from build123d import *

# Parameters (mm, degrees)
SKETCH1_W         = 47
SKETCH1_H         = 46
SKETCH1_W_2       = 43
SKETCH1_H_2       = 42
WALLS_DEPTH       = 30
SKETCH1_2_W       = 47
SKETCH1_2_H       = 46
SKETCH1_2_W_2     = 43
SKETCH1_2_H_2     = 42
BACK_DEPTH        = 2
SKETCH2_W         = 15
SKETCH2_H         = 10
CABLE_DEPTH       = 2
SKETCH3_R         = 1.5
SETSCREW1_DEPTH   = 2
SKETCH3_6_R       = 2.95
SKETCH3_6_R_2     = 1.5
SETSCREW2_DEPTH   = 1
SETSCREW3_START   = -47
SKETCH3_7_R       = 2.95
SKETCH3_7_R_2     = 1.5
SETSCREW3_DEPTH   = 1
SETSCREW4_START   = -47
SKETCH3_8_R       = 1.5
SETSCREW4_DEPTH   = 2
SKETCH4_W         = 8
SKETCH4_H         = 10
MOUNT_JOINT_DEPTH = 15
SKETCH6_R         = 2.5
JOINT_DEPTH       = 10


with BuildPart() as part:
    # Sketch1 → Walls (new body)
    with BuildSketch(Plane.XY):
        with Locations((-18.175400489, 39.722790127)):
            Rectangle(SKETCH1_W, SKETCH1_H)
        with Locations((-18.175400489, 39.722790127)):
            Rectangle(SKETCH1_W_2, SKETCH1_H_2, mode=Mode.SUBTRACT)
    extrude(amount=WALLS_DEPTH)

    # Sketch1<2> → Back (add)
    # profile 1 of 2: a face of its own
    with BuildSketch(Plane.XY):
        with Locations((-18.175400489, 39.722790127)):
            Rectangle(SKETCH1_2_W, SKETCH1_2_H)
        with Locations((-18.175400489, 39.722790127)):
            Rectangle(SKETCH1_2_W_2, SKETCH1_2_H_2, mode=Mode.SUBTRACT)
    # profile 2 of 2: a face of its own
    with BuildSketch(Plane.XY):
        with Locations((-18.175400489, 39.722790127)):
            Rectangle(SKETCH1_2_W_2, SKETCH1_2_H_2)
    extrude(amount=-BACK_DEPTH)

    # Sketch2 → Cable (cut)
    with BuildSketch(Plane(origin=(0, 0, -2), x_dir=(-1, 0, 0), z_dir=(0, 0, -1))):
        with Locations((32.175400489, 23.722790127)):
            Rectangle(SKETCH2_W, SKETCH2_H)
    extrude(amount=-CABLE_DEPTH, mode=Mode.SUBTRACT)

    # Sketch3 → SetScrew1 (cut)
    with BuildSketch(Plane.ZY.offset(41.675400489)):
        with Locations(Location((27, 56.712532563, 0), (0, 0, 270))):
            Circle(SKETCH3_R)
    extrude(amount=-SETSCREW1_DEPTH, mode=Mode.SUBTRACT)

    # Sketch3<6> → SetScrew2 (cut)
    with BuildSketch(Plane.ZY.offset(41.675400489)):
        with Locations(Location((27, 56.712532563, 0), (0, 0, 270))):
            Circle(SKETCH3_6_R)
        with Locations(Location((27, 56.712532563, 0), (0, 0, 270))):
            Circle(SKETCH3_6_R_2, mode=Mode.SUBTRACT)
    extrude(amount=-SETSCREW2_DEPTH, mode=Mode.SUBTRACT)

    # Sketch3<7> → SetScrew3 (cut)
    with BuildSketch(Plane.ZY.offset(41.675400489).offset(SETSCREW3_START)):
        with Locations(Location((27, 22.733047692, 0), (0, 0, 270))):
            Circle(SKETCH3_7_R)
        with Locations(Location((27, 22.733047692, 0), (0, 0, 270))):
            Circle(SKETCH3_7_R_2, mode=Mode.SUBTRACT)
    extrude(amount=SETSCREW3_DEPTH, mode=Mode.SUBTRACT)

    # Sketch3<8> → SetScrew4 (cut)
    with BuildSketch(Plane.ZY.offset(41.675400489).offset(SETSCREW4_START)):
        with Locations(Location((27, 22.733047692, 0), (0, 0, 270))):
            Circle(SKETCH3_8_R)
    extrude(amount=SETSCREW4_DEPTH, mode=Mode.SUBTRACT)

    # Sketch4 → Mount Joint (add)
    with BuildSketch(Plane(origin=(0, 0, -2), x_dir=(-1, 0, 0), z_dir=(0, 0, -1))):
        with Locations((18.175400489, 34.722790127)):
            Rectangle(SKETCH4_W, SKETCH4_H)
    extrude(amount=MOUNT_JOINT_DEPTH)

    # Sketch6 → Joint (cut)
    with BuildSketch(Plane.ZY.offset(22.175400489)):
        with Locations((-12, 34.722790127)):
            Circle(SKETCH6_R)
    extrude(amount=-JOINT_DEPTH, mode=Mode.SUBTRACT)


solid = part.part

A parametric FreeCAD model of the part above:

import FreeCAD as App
import Part
import Sketcher

V = App.Vector

doc = App.newDocument("Part")
params = doc.addObject("Spreadsheet::Sheet", "Params")
for row, (alias, value) in enumerate([
    ("sketch1_width", "47 mm"),
    ("sketch1_width2", "43 mm"),
    ("sketch1_height", "46 mm"),
    ("sketch1_height2", "42 mm"),
    ("pad1_length", "30 mm"),
    ("sketch2_width", "47 mm"),
    ("sketch2_height", "46 mm"),
    ("pad2_length", "2 mm"),
    ("sketch3_width", "15 mm"),
    ("sketch3_height", "10 mm"),
    ("pocket1_length", "2 mm"),
    ("sketch4_diameter", "3 mm"),
    ("pocket2_length", "2 mm"),
    ("sketch5_diameter", "3 mm"),
    ("sketch5_diameter2", "5.9 mm"),
    ("pocket3_length", "1 mm"),
    ("sketch6_diameter", "3 mm"),
    ("sketch6_diameter2", "5.9 mm"),
    ("pocket4_length", "1 mm"),
    ("sketch7_diameter", "3 mm"),
    ("pocket5_length", "2 mm"),
    ("sketch8_width", "8 mm"),
    ("sketch8_height", "10 mm"),
    ("pad3_length", "15 mm"),
    ("sketch9_diameter", "5 mm"),
    ("pocket6_length", "10 mm"),
], start=1):
    params.set(f"A{row}", alias)
    params.set(f"B{row}", "=" + value)
    params.setAlias(f"B{row}", alias)

body = doc.addObject("PartDesign::Body", "Body")

# Sketch on XY plane
sketch1 = doc.addObject("Sketcher::SketchObject", "Sketch")
body.addObject(sketch1)
sketch1.AttachmentSupport = (doc.XY_Plane, [""])
sketch1.MapMode = "FlatFace"
sketch1.addGeometry([
    Part.LineSegment(V(-42, 63, 0), V(-42, 17, 0)),  # 0
    Part.LineSegment(V(-42, 17, 0), V(5, 17, 0)),  # 1
    Part.LineSegment(V(5, 17, 0), V(5, 63, 0)),  # 2
    Part.LineSegment(V(5, 63, 0), V(-42, 63, 0)),  # 3
    Part.LineSegment(V(3, 19, 0), V(-40, 19, 0)),  # 4
    Part.LineSegment(V(-40, 19, 0), V(-40, 61, 0)),  # 5
    Part.LineSegment(V(-40, 61, 0), V(3, 61, 0)),  # 6
    Part.LineSegment(V(3, 61, 0), V(3, 19, 0)),  # 7
], False)
sketch1.addConstraint([
    Sketcher.Constraint("Coincident", 0, 2, 1, 1),
    Sketcher.Constraint("Coincident", 1, 2, 2, 1),
    Sketcher.Constraint("Coincident", 2, 2, 3, 1),
    Sketcher.Constraint("Coincident", 3, 2, 0, 1),
    Sketcher.Constraint("Coincident", 4, 2, 5, 1),
    Sketcher.Constraint("Coincident", 5, 2, 6, 1),
    Sketcher.Constraint("Coincident", 6, 2, 7, 1),
    Sketcher.Constraint("Coincident", 7, 2, 4, 1),
    Sketcher.Constraint("Vertical", 0),
    Sketcher.Constraint("Horizontal", 1),
    Sketcher.Constraint("Vertical", 2),
    Sketcher.Constraint("Horizontal", 3),
    Sketcher.Constraint("Horizontal", 4),
    Sketcher.Constraint("Vertical", 5),
    Sketcher.Constraint("Horizontal", 6),
    Sketcher.Constraint("Vertical", 7),
    Sketcher.Constraint("DistanceX", 1, 1, 1, 2, 47.0),
    Sketcher.Constraint("DistanceX", 4, 2, 4, 1, 43.0),
    Sketcher.Constraint("DistanceY", 0, 2, 0, 1, 46.0),
    Sketcher.Constraint("DistanceY", 5, 1, 5, 2, 42.0),
    Sketcher.Constraint("DistanceX", 0, 2, 4, 2, 2.0),
    Sketcher.Constraint("DistanceY", 0, 2, 4, 2, 2.0),
    Sketcher.Constraint("DistanceX", 0, 2, -1, 1, 41.6754),
    Sketcher.Constraint("DistanceY", -1, 1, 0, 2, 16.72279),
])
sketch1.setExpression("Constraints[16]", "Params.sketch1_width")
sketch1.setExpression("Constraints[17]", "Params.sketch1_width2")
sketch1.setExpression("Constraints[18]", "Params.sketch1_height")
sketch1.setExpression("Constraints[19]", "Params.sketch1_height2")
pad1 = doc.addObject("PartDesign::Pad", "Pad")
body.addObject(pad1)
pad1.Profile = sketch1
pad1.setExpression("Length", "Params.pad1_length")

# Sketch on XY plane
sketch2 = doc.addObject("Sketcher::SketchObject", "Sketch001")
body.addObject(sketch2)
sketch2.AttachmentSupport = (doc.XY_Plane, [""])
sketch2.MapMode = "FlatFace"
sketch2.addGeometry([
    Part.LineSegment(V(-42, 63, 0), V(-42, 17, 0)),
    Part.LineSegment(V(-42, 17, 0), V(5, 17, 0)),
    Part.LineSegment(V(5, 17, 0), V(5, 63, 0)),
    Part.LineSegment(V(5, 63, 0), V(-42, 63, 0)),
], False)
sketch2.addConstraint([
    Sketcher.Constraint("Coincident", 0, 2, 1, 1),
    Sketcher.Constraint("Coincident", 1, 2, 2, 1),
    Sketcher.Constraint("Coincident", 2, 2, 3, 1),
    Sketcher.Constraint("Coincident", 3, 2, 0, 1),
    Sketcher.Constraint("Vertical", 0),
    Sketcher.Constraint("Horizontal", 1),
    Sketcher.Constraint("Vertical", 2),
    Sketcher.Constraint("Horizontal", 3),
    Sketcher.Constraint("DistanceX", 1, 1, 1, 2, 47.0),
    Sketcher.Constraint("DistanceY", 0, 2, 0, 1, 46.0),
    Sketcher.Constraint("DistanceX", 0, 2, -1, 1, 41.6754),
    Sketcher.Constraint("DistanceY", -1, 1, 0, 2, 16.72279),
])
sketch2.setExpression("Constraints[8]", "Params.sketch2_width")
sketch2.setExpression("Constraints[9]", "Params.sketch2_height")
pad2 = doc.addObject("PartDesign::Pad", "Pad001")
body.addObject(pad2)
pad2.Profile = sketch2
pad2.setExpression("Length", "Params.pad2_length")
pad2.Reversed = True

# Sketch on XY plane
sketch3 = doc.addObject("Sketcher::SketchObject", "Sketch002")
body.addObject(sketch3)
sketch3.AttachmentSupport = (doc.XY_Plane, [""])
sketch3.MapMode = "FlatFace"
sketch3.AttachmentOffset = App.Placement(V(0, 0, -2), App.Rotation())
sketch3.addGeometry([
    Part.LineSegment(V(-25, 29, 0), V(-25, 19, 0)),
    Part.LineSegment(V(-25, 19, 0), V(-40, 19, 0)),
    Part.LineSegment(V(-40, 19, 0), V(-40, 29, 0)),
    Part.LineSegment(V(-40, 29, 0), V(-25, 29, 0)),
], False)
sketch3.addConstraint([
    Sketcher.Constraint("Coincident", 0, 2, 1, 1),
    Sketcher.Constraint("Coincident", 1, 2, 2, 1),
    Sketcher.Constraint("Coincident", 2, 2, 3, 1),
    Sketcher.Constraint("Coincident", 3, 2, 0, 1),
    Sketcher.Constraint("Vertical", 0),
    Sketcher.Constraint("Horizontal", 1),
    Sketcher.Constraint("Vertical", 2),
    Sketcher.Constraint("Horizontal", 3),
    Sketcher.Constraint("DistanceX", 1, 2, 1, 1, 15.0),
    Sketcher.Constraint("DistanceY", 0, 2, 0, 1, 10.0),
    Sketcher.Constraint("DistanceX", 0, 2, -1, 1, 24.6754),
    Sketcher.Constraint("DistanceY", -1, 1, 0, 2, 18.72279),
])
sketch3.setExpression("Constraints[8]", "Params.sketch3_width")
sketch3.setExpression("Constraints[9]", "Params.sketch3_height")
pocket1 = doc.addObject("PartDesign::Pocket", "Pocket")
body.addObject(pocket1)
pocket1.Profile = sketch3
pocket1.setExpression("Length", "Params.pocket1_length")
pocket1.Reversed = True

# Sketch on YZ plane
sketch4 = doc.addObject("Sketcher::SketchObject", "Sketch003")
body.addObject(sketch4)
sketch4.AttachmentSupport = (doc.YZ_Plane, [""])
sketch4.MapMode = "FlatFace"
sketch4.AttachmentOffset = App.Placement(V(0, 0, -41.6754), App.Rotation())
sketch4.addGeometry(Part.Circle(V(56.7, 27, 0), V(0, 0, 1), 1.5), False)
sketch4.addConstraint([
    Sketcher.Constraint("Diameter", 0, 3.0),
    Sketcher.Constraint("DistanceY", -1, 1, 0, 3, 27.0),
    Sketcher.Constraint("DistanceX", -1, 1, 0, 3, 56.712533),
])
sketch4.setExpression("Constraints[0]", "Params.sketch4_diameter")
pocket2 = doc.addObject("PartDesign::Pocket", "Pocket001")
body.addObject(pocket2)
pocket2.Profile = sketch4
pocket2.setExpression("Length", "Params.pocket2_length")
pocket2.Reversed = True

# Sketch on YZ plane
sketch5 = doc.addObject("Sketcher::SketchObject", "Sketch004")
body.addObject(sketch5)
sketch5.AttachmentSupport = (doc.YZ_Plane, [""])
sketch5.MapMode = "FlatFace"
sketch5.AttachmentOffset = App.Placement(V(0, 0, -41.6754), App.Rotation())
sketch5.addGeometry([
    Part.Circle(V(56.7, 27, 0), V(0, 0, 1), 3),
    Part.Circle(V(56.7, 27, 0), V(0, 0, 1), 1.5),
], False)
sketch5.addConstraint([
    Sketcher.Constraint("Coincident", 1, 3, 0, 3),
    Sketcher.Constraint("Diameter", 1, 3.0),
    Sketcher.Constraint("Diameter", 0, 5.9),
    Sketcher.Constraint("DistanceY", -1, 1, 0, 3, 27.0),
    Sketcher.Constraint("DistanceX", -1, 1, 0, 3, 56.712533),
])
sketch5.setExpression("Constraints[1]", "Params.sketch5_diameter")
sketch5.setExpression("Constraints[2]", "Params.sketch5_diameter2")
pocket3 = doc.addObject("PartDesign::Pocket", "Pocket002")
body.addObject(pocket3)
pocket3.Profile = sketch5
pocket3.setExpression("Length", "Params.pocket3_length")
pocket3.Reversed = True

# Sketch on YZ plane
sketch6 = doc.addObject("Sketcher::SketchObject", "Sketch005")
body.addObject(sketch6)
sketch6.AttachmentSupport = (doc.YZ_Plane, [""])
sketch6.MapMode = "FlatFace"
sketch6.AttachmentOffset = App.Placement(V(0, 0, 5.3246), App.Rotation())
sketch6.addGeometry([
    Part.Circle(V(22.7, 27, 0), V(0, 0, 1), 3),
    Part.Circle(V(22.7, 27, 0), V(0, 0, 1), 1.5),
], False)
sketch6.addConstraint([
    Sketcher.Constraint("Coincident", 1, 3, 0, 3),
    Sketcher.Constraint("Diameter", 1, 3.0),
    Sketcher.Constraint("Diameter", 0, 5.9),
    Sketcher.Constraint("DistanceY", -1, 1, 0, 3, 27.0),
    Sketcher.Constraint("DistanceX", -1, 1, 0, 3, 22.733048),
])
sketch6.setExpression("Constraints[1]", "Params.sketch6_diameter")
sketch6.setExpression("Constraints[2]", "Params.sketch6_diameter2")
pocket4 = doc.addObject("PartDesign::Pocket", "Pocket003")
body.addObject(pocket4)
pocket4.Profile = sketch6
pocket4.setExpression("Length", "Params.pocket4_length")

# Sketch on YZ plane
sketch7 = doc.addObject("Sketcher::SketchObject", "Sketch006")
body.addObject(sketch7)
sketch7.AttachmentSupport = (doc.YZ_Plane, [""])
sketch7.MapMode = "FlatFace"
sketch7.AttachmentOffset = App.Placement(V(0, 0, 5.3246), App.Rotation())
sketch7.addGeometry(Part.Circle(V(22.7, 27, 0), V(0, 0, 1), 1.5), False)
sketch7.addConstraint([
    Sketcher.Constraint("Diameter", 0, 3.0),
    Sketcher.Constraint("DistanceY", -1, 1, 0, 3, 27.0),
    Sketcher.Constraint("DistanceX", -1, 1, 0, 3, 22.733048),
])
sketch7.setExpression("Constraints[0]", "Params.sketch7_diameter")
pocket5 = doc.addObject("PartDesign::Pocket", "Pocket004")
body.addObject(pocket5)
pocket5.Profile = sketch7
pocket5.setExpression("Length", "Params.pocket5_length")

# Sketch on XY plane
sketch8 = doc.addObject("Sketcher::SketchObject", "Sketch007")
body.addObject(sketch8)
sketch8.AttachmentSupport = (doc.XY_Plane, [""])
sketch8.MapMode = "FlatFace"
sketch8.AttachmentOffset = App.Placement(V(0, 0, -2), App.Rotation())
sketch8.addGeometry([
    Part.LineSegment(V(-14, 40, 0), V(-14, 30, 0)),
    Part.LineSegment(V(-14, 30, 0), V(-22, 30, 0)),
    Part.LineSegment(V(-22, 30, 0), V(-22, 40, 0)),
    Part.LineSegment(V(-22, 40, 0), V(-14, 40, 0)),
], False)
sketch8.addConstraint([
    Sketcher.Constraint("Coincident", 0, 2, 1, 1),
    Sketcher.Constraint("Coincident", 1, 2, 2, 1),
    Sketcher.Constraint("Coincident", 2, 2, 3, 1),
    Sketcher.Constraint("Coincident", 3, 2, 0, 1),
    Sketcher.Constraint("Vertical", 0),
    Sketcher.Constraint("Horizontal", 1),
    Sketcher.Constraint("Vertical", 2),
    Sketcher.Constraint("Horizontal", 3),
    Sketcher.Constraint("DistanceX", 1, 2, 1, 1, 8.0),
    Sketcher.Constraint("DistanceY", 0, 2, 0, 1, 10.0),
    Sketcher.Constraint("DistanceX", 0, 2, -1, 1, 14.1754),
    Sketcher.Constraint("DistanceY", -1, 1, 0, 2, 29.72279),
])
sketch8.setExpression("Constraints[8]", "Params.sketch8_width")
sketch8.setExpression("Constraints[9]", "Params.sketch8_height")
pad3 = doc.addObject("PartDesign::Pad", "Pad002")
body.addObject(pad3)
pad3.Profile = sketch8
pad3.setExpression("Length", "Params.pad3_length")
pad3.Reversed = True

# Sketch on YZ plane
sketch9 = doc.addObject("Sketcher::SketchObject", "Sketch008")
body.addObject(sketch9)
sketch9.AttachmentSupport = (doc.YZ_Plane, [""])
sketch9.MapMode = "FlatFace"
sketch9.AttachmentOffset = App.Placement(V(0, 0, -22.1754), App.Rotation())
sketch9.addGeometry(Part.Circle(V(34.7, -12, 0), V(0, 0, 1), 2.5), False)
sketch9.addConstraint([
    Sketcher.Constraint("Diameter", 0, 5.0),
    Sketcher.Constraint("DistanceY", 0, 3, -1, 1, 12.0),
    Sketcher.Constraint("DistanceX", -1, 1, 0, 3, 34.72279),
])
sketch9.setExpression("Constraints[0]", "Params.sketch9_diameter")
pocket6 = doc.addObject("PartDesign::Pocket", "Pocket005")
body.addObject(pocket6)
pocket6.Profile = sketch9
pocket6.setExpression("Length", "Params.pocket6_length")
pocket6.Reversed = True

doc.recompute()
